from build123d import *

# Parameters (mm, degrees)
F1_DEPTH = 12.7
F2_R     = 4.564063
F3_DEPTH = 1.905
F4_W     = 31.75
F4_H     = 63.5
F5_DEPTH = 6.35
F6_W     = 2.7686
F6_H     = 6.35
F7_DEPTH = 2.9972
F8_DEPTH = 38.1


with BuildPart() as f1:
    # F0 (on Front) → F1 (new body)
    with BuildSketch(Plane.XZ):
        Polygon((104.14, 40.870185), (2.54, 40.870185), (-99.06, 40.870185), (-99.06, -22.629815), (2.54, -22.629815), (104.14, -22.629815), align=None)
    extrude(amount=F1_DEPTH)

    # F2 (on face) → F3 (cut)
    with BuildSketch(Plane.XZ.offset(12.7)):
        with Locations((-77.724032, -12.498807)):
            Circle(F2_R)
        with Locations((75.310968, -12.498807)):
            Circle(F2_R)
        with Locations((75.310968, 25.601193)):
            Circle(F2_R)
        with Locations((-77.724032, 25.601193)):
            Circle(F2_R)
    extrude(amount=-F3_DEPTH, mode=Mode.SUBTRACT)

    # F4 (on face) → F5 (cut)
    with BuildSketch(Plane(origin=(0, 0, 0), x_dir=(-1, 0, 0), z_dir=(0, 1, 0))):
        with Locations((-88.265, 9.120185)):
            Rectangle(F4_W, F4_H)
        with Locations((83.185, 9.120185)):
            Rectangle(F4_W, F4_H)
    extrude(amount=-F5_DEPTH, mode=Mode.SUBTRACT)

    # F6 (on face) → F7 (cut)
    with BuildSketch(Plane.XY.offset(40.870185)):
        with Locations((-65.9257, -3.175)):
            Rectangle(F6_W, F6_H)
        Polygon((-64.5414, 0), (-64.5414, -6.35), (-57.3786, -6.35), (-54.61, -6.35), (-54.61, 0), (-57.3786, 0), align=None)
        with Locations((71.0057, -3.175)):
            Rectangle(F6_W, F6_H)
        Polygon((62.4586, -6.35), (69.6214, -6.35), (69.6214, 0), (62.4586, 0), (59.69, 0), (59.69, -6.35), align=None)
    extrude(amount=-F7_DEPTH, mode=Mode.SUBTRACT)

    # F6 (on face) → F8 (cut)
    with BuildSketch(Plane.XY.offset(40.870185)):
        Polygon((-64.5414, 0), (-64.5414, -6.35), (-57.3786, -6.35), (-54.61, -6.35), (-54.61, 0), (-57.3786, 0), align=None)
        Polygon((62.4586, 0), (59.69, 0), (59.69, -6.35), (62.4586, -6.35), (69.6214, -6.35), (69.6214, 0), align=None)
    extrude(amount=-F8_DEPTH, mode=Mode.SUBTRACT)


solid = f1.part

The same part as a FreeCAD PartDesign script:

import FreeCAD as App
import Part
import Sketcher
from FreeCAD import Vector
Q = App.Units.Quantity


def add_polygon(sketch, points):
    """Adds a closed chain of lines whose ends are joined by coincident constraints."""
    first, n = sketch.GeometryCount, len(points)
    for a, b in zip(points, points[1:] + points[:1]):
        sketch.addGeometry(Part.LineSegment(App.Vector(*a, 0), App.Vector(*b, 0)), False)
    for i in range(n):
        sketch.addConstraint(Sketcher.Constraint("Coincident", first + i, 2, first + (i + 1) % n, 1))

doc = App.newDocument("Part")
body = doc.addObject("PartDesign::Body", "Body")

sketch1 = body.newObject("Sketcher::SketchObject", "Sketch")
sketch1.AttachmentSupport = (doc.getObject("XZ_Plane"), [""])
sketch1.MapMode = "FlatFace"
add_polygon(sketch1, [(104, 41), (-99, 41), (-99, -23), (104, -23)])
sketch1.addConstraint(Sketcher.Constraint("Horizontal", 0))
sketch1.addConstraint(Sketcher.Constraint("Vertical", 1))
sketch1.addConstraint(Sketcher.Constraint("Horizontal", 2))
sketch1.addConstraint(Sketcher.Constraint("Vertical", 3))
sketch1.addConstraint(Sketcher.Constraint("DistanceX", 0, 2, 0, 1, Q("8 in")))
sketch1.addConstraint(Sketcher.Constraint("DistanceY", 1, 2, 1, 1, Q("2.5 in")))
sketch1.addConstraint(Sketcher.Constraint("DistanceX", 0, 2, -1, 1, Q("3.9 in")))
sketch1.addConstraint(Sketcher.Constraint("DistanceY", -1, 1, 0, 2, 40.870185))
pad1 = body.newObject("PartDesign::Pad", "Pad")
pad1.Profile = sketch1
pad1.Length = Q("0.5 in")

sketch2 = body.newObject("Sketcher::SketchObject", "Sketch001")
sketch2.AttachmentSupport = (doc.getObject("XZ_Plane"), [""])
sketch2.MapMode = "FlatFace"
sketch2.AttachmentOffset = App.Placement(Vector(0, 0, 0.5 * 25.4), App.Rotation())
sketch2.addGeometry(Part.Circle(Vector(-77.7, -12.5, 0), Vector(0, 0, 1), 4.6), False)
sketch2.addGeometry(Part.Circle(Vector(75.3, -12.5, 0), Vector(0, 0, 1), 4.6), False)
sketch2.addGeometry(Part.Circle(Vector(75.3, 25.6, 0), Vector(0, 0, 1), 4.6), False)
sketch2.addGeometry(Part.Circle(Vector(-77.7, 25.6, 0), Vector(0, 0, 1), 4.6), False)
sketch2.addConstraint(Sketcher.Constraint("Equal", 0, 1))
sketch2.addConstraint(Sketcher.Constraint("Equal", 1, 2))
sketch2.addConstraint(Sketcher.Constraint("Equal", 2, 3))
sketch2.addConstraint(Sketcher.Constraint("Horizontal", 0, 3, 1, 3))
sketch2.addConstraint(Sketcher.Constraint("Horizontal", 2, 3, 3, 3))
sketch2.addConstraint(Sketcher.Constraint("Vertical", 1, 3, 2, 3))
sketch2.addConstraint(Sketcher.Constraint("Vertical", 0, 3, 3, 3))
sketch2.addConstraint(Sketcher.Constraint("Diameter", 0, Q("0.359375 in")))
sketch2.addConstraint(Sketcher.Constraint("DistanceY", 1, 3, 2, 3, Q("1.5 in")))
sketch2.addConstraint(Sketcher.Constraint("DistanceX", 0, 3, 1, 3, Q("6.025 in")))
sketch2.addConstraint(Sketcher.Constraint("DistanceX", 0, 3, -1, 1, 77.724032))
sketch2.addConstraint(Sketcher.Constraint("DistanceY", 0, 3, -1, 1, 12.498807))
pocket1 = body.newObject("PartDesign::Pocket", "Pocket")
pocket1.Profile = sketch2
pocket1.Length = Q("0.075 in")

sketch3 = body.newObject("Sketcher::SketchObject", "Sketch002")
sketch3.AttachmentSupport = (doc.getObject("XZ_Plane"), [""])
sketch3.MapMode = "FlatFace"
add_polygon(sketch3, [(104, 41), (104, -23), (72, -23), (72, 41)])
add_polygon(sketch3, [(-67, 41), (-67, -23), (-99, -23), (-99, 41)])
sketch3.addConstraint(Sketcher.Constraint("Vertical", 0))
sketch3.addConstraint(Sketcher.Constraint("Horizontal", 1))
sketch3.addConstraint(Sketcher.Constraint("Vertical", 2))
sketch3.addConstraint(Sketcher.Constraint("Horizontal", 3))
sketch3.addConstraint(Sketcher.Constraint("Vertical", 4))
sketch3.addConstraint(Sketcher.Constraint("Horizontal", 5))
sketch3.addConstraint(Sketcher.Constraint("Vertical", 6))
sketch3.addConstraint(Sketcher.Constraint("Horizontal", 7))
sketch3.addConstraint(Sketcher.Constraint("Horizontal", 1, 2, 4, 2))
sketch3.addConstraint(Sketcher.Constraint("Horizontal", 3, 2, 6, 2))
sketch3.addConstraint(Sketcher.Constraint("Equal", 3, 5))
sketch3.addConstraint(Sketcher.Constraint("DistanceY", 0, 2, 0, 1, Q("2.5 in")))
sketch3.addConstraint(Sketcher.Constraint("DistanceX", 5, 2, 0, 2, Q("8 in")))
sketch3.addConstraint(Sketcher.Constraint("DistanceX", 1, 2, 1, 1, Q("1.25 in")))
sketch3.addConstraint(Sketcher.Constraint("DistanceX", -1, 1, 0, 2, Q("4.1 in")))
sketch3.addConstraint(Sketcher.Constraint("DistanceY", 0, 2, -1, 1, 22.629815))
pocket2 = body.newObject("PartDesign::Pocket", "Pocket001")
pocket2.Profile = sketch3
pocket2.Length = Q("0.25 in")
pocket2.Reversed = True

sketch4 = body.newObject("Sketcher::SketchObject", "Sketch003")
sketch4.AttachmentSupport = (doc.getObject("XY_Plane"), [""])
sketch4.MapMode = "FlatFace"
sketch4.AttachmentOffset = App.Placement(Vector(0, 0, 40.870185), App.Rotation())
add_polygon(sketch4, [(-67, 0), (-67, -6), (-55, -6), (-55, 0)])
add_polygon(sketch4, [(72, -6), (72, 0), (60, 0), (60, -6)])
sketch4.addConstraint(Sketcher.Constraint("Vertical", 0))
sketch4.addConstraint(Sketcher.Constraint("Horizontal", 1))
sketch4.addConstraint(Sketcher.Constraint("Vertical", 2))
sketch4.addConstraint(Sketcher.Constraint("Horizontal", 3))
sketch4.addConstraint(Sketcher.Constraint("Vertical", 4))
sketch4.addConstraint(Sketcher.Constraint("Horizontal", 5))
sketch4.addConstraint(Sketcher.Constraint("Vertical", 6))
sketch4.addConstraint(Sketcher.Constraint("Horizontal", 7))
sketch4.addConstraint(Sketcher.Constraint("PointOnObject", 2, 2, -1))
sketch4.addConstraint(Sketcher.Constraint("PointOnObject", 4, 2, -1))
sketch4.addConstraint(Sketcher.Constraint("Horizontal", 1, 2, 6, 2))
sketch4.addConstraint(Sketcher.Constraint("Equal", 3, 5))
sketch4.addConstraint(Sketcher.Constraint("DistanceX", 1, 1, 1, 2, Q("0.5 in")))
sketch4.addConstraint(Sketcher.Constraint("DistanceX", 2, 2, 4, 2, Q("5 in")))
sketch4.addConstraint(Sketcher.Constraint("DistanceY", 0, 2, 0, 1, Q("0.25 in")))
sketch4.addConstraint(Sketcher.Constraint("DistanceX", 0, 2, -1, 1, Q("2.65 in")))
pocket3 = body.newObject("PartDesign::Pocket", "Pocket002")
pocket3.Profile = sketch4
pocket3.Length = Q("0.118 in")

sketch5 = body.newObject("Sketcher::SketchObject", "Sketch004")
sketch5.AttachmentSupport = (doc.getObject("XY_Plane"), [""])
sketch5.MapMode = "FlatFace"
sketch5.AttachmentOffset = App.Placement(Vector(0, 0, 40.870185), App.Rotation())
add_polygon(sketch5, [(-65, 0), (-65, -6), (-55, -6), (-55, 0)])
add_polygon(sketch5, [(60, 0), (60, -6), (70, -6), (70, 0)])
sketch5.addConstraint(Sketcher.Constraint("Vertical", 0))
sketch5.addConstraint(Sketcher.Constraint("Horizontal", 1))
sketch5.addConstraint(Sketcher.Constraint("Vertical", 2))
sketch5.addConstraint(Sketcher.Constraint("Horizontal", 3))
sketch5.addConstraint(Sketcher.Constraint("Vertical", 4))
sketch5.addConstraint(Sketcher.Constraint("Horizontal", 5))
sketch5.addConstraint(Sketcher.Constraint("Vertical", 6))
sketch5.addConstraint(Sketcher.Constraint("Horizontal", 7))
sketch5.addConstraint(Sketcher.Constraint("PointOnObject", 2, 2, -1))
sketch5.addConstraint(Sketcher.Constraint("PointOnObject", 6, 2, -1))
sketch5.addConstraint(Sketcher.Constraint("Horizontal", 1, 2, 4, 2))
sketch5.addConstraint(Sketcher.Constraint("Equal", 3, 5))
sketch5.addConstraint(Sketcher.Constraint("DistanceY", 0, 2, 0, 1, Q("0.25 in")))
sketch5.addConstraint(Sketcher.Constraint("DistanceX", 1, 2, 4, 2, Q("4.5 in")))
sketch5.addConstraint(Sketcher.Constraint("DistanceX", 1, 1, 1, 2, Q("0.391 in")))
sketch5.addConstraint(Sketcher.Constraint("DistanceX", 1, 2, -1, 1, Q("2.15 in")))
pocket4 = body.newObject("PartDesign::Pocket", "Pocket003")
pocket4.Profile = sketch5
pocket4.Length = Q("1.5 in")

doc.recompute()
